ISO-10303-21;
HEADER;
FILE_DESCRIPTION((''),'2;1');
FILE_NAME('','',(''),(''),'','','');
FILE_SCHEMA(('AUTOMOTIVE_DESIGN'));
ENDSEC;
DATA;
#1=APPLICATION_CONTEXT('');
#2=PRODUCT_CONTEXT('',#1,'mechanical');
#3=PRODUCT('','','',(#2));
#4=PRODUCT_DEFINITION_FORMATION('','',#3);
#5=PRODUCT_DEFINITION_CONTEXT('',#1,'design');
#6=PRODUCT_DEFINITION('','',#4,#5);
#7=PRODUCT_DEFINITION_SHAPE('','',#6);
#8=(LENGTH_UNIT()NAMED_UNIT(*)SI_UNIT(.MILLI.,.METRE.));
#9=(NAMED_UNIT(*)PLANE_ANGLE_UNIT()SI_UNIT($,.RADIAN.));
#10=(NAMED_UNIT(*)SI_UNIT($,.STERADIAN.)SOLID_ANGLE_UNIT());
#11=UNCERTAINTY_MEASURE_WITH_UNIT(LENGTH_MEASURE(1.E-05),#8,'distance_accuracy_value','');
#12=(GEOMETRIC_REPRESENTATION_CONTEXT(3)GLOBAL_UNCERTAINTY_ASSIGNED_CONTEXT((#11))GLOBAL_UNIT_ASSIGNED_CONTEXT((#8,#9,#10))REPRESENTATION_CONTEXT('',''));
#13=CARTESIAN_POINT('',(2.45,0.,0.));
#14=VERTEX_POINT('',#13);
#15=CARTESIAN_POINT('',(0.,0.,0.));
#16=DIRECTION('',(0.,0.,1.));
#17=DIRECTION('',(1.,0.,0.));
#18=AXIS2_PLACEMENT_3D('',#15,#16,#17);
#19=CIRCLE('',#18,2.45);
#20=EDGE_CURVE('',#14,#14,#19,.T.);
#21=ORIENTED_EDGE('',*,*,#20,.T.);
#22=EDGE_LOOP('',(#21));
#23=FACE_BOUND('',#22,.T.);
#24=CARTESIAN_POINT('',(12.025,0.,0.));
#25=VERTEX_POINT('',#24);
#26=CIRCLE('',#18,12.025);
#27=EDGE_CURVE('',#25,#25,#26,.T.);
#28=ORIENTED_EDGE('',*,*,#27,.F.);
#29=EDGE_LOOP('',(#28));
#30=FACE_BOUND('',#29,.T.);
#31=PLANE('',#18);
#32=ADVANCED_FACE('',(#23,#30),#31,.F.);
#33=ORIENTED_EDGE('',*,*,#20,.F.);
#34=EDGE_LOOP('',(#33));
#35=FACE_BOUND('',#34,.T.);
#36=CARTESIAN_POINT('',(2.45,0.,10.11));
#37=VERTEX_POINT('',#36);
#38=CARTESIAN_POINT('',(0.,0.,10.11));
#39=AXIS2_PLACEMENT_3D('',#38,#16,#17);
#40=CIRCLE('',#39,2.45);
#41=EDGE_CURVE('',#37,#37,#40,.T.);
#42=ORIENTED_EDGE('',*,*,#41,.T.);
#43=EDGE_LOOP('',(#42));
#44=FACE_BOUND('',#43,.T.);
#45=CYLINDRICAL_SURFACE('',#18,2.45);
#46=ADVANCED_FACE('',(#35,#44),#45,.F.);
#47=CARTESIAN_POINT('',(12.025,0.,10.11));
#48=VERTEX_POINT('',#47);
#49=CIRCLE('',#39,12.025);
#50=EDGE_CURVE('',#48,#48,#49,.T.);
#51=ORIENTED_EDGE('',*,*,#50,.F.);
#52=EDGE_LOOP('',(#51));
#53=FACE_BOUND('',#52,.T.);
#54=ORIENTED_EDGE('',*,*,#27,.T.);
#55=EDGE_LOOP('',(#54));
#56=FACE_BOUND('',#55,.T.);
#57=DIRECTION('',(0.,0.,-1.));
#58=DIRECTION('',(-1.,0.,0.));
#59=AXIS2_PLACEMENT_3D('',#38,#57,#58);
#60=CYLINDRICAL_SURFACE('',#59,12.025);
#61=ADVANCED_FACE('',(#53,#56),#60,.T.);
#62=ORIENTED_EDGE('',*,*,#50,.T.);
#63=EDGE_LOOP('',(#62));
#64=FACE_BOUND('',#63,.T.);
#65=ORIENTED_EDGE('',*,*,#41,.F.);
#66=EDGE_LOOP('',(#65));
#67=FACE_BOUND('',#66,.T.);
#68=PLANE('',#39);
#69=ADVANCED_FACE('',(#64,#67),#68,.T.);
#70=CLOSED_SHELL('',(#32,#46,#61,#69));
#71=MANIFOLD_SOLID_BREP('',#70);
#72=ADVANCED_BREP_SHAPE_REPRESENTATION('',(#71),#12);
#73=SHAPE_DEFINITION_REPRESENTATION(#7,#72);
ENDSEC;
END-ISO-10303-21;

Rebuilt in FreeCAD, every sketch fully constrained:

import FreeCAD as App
import Part
import Sketcher
from FreeCAD import Vector

doc = App.newDocument("Part")
body = doc.addObject("PartDesign::Body", "Body")

# Sketch on XY plane
sketch1 = doc.addObject("Sketcher::SketchObject", "Sketch")
body.addObject(sketch1)
sketch1.AttachmentSupport = (doc.XY_Plane, [""])
sketch1.MapMode = "FlatFace"
sketch1.addGeometry(Part.Circle(Vector(0, 0, 0), Vector(0, 0, 1), 12), False)
sketch1.addConstraint([
    Sketcher.Constraint("Coincident", 0, 3, -1, 1),
    Sketcher.Constraint("Diameter", 0, 24.05),
])
pad1 = doc.addObject("PartDesign::Pad", "Pad")
body.addObject(pad1)
pad1.Profile = sketch1
pad1.Length = 10.11

# Sketch on XY plane
sketch2 = doc.addObject("Sketcher::SketchObject", "Sketch001")
body.addObject(sketch2)
sketch2.AttachmentSupport = (doc.XY_Plane, [""])
sketch2.MapMode = "FlatFace"
sketch2.AttachmentOffset = App.Placement(Vector(0, 0, 10.11), App.Rotation())
sketch2.addGeometry(Part.Circle(Vector(0, 0, 0), Vector(0, 0, 1), 2.5), False)
sketch2.addConstraint([
    Sketcher.Constraint("Coincident", 0, 3, -1, 1),
    Sketcher.Constraint("Diameter", 0, 4.9),
])
pocket1 = doc.addObject("PartDesign::Pocket", "Pocket")
body.addObject(pocket1)
pocket1.Profile = sketch2
pocket1.Length = 10.11

doc.recompute()
